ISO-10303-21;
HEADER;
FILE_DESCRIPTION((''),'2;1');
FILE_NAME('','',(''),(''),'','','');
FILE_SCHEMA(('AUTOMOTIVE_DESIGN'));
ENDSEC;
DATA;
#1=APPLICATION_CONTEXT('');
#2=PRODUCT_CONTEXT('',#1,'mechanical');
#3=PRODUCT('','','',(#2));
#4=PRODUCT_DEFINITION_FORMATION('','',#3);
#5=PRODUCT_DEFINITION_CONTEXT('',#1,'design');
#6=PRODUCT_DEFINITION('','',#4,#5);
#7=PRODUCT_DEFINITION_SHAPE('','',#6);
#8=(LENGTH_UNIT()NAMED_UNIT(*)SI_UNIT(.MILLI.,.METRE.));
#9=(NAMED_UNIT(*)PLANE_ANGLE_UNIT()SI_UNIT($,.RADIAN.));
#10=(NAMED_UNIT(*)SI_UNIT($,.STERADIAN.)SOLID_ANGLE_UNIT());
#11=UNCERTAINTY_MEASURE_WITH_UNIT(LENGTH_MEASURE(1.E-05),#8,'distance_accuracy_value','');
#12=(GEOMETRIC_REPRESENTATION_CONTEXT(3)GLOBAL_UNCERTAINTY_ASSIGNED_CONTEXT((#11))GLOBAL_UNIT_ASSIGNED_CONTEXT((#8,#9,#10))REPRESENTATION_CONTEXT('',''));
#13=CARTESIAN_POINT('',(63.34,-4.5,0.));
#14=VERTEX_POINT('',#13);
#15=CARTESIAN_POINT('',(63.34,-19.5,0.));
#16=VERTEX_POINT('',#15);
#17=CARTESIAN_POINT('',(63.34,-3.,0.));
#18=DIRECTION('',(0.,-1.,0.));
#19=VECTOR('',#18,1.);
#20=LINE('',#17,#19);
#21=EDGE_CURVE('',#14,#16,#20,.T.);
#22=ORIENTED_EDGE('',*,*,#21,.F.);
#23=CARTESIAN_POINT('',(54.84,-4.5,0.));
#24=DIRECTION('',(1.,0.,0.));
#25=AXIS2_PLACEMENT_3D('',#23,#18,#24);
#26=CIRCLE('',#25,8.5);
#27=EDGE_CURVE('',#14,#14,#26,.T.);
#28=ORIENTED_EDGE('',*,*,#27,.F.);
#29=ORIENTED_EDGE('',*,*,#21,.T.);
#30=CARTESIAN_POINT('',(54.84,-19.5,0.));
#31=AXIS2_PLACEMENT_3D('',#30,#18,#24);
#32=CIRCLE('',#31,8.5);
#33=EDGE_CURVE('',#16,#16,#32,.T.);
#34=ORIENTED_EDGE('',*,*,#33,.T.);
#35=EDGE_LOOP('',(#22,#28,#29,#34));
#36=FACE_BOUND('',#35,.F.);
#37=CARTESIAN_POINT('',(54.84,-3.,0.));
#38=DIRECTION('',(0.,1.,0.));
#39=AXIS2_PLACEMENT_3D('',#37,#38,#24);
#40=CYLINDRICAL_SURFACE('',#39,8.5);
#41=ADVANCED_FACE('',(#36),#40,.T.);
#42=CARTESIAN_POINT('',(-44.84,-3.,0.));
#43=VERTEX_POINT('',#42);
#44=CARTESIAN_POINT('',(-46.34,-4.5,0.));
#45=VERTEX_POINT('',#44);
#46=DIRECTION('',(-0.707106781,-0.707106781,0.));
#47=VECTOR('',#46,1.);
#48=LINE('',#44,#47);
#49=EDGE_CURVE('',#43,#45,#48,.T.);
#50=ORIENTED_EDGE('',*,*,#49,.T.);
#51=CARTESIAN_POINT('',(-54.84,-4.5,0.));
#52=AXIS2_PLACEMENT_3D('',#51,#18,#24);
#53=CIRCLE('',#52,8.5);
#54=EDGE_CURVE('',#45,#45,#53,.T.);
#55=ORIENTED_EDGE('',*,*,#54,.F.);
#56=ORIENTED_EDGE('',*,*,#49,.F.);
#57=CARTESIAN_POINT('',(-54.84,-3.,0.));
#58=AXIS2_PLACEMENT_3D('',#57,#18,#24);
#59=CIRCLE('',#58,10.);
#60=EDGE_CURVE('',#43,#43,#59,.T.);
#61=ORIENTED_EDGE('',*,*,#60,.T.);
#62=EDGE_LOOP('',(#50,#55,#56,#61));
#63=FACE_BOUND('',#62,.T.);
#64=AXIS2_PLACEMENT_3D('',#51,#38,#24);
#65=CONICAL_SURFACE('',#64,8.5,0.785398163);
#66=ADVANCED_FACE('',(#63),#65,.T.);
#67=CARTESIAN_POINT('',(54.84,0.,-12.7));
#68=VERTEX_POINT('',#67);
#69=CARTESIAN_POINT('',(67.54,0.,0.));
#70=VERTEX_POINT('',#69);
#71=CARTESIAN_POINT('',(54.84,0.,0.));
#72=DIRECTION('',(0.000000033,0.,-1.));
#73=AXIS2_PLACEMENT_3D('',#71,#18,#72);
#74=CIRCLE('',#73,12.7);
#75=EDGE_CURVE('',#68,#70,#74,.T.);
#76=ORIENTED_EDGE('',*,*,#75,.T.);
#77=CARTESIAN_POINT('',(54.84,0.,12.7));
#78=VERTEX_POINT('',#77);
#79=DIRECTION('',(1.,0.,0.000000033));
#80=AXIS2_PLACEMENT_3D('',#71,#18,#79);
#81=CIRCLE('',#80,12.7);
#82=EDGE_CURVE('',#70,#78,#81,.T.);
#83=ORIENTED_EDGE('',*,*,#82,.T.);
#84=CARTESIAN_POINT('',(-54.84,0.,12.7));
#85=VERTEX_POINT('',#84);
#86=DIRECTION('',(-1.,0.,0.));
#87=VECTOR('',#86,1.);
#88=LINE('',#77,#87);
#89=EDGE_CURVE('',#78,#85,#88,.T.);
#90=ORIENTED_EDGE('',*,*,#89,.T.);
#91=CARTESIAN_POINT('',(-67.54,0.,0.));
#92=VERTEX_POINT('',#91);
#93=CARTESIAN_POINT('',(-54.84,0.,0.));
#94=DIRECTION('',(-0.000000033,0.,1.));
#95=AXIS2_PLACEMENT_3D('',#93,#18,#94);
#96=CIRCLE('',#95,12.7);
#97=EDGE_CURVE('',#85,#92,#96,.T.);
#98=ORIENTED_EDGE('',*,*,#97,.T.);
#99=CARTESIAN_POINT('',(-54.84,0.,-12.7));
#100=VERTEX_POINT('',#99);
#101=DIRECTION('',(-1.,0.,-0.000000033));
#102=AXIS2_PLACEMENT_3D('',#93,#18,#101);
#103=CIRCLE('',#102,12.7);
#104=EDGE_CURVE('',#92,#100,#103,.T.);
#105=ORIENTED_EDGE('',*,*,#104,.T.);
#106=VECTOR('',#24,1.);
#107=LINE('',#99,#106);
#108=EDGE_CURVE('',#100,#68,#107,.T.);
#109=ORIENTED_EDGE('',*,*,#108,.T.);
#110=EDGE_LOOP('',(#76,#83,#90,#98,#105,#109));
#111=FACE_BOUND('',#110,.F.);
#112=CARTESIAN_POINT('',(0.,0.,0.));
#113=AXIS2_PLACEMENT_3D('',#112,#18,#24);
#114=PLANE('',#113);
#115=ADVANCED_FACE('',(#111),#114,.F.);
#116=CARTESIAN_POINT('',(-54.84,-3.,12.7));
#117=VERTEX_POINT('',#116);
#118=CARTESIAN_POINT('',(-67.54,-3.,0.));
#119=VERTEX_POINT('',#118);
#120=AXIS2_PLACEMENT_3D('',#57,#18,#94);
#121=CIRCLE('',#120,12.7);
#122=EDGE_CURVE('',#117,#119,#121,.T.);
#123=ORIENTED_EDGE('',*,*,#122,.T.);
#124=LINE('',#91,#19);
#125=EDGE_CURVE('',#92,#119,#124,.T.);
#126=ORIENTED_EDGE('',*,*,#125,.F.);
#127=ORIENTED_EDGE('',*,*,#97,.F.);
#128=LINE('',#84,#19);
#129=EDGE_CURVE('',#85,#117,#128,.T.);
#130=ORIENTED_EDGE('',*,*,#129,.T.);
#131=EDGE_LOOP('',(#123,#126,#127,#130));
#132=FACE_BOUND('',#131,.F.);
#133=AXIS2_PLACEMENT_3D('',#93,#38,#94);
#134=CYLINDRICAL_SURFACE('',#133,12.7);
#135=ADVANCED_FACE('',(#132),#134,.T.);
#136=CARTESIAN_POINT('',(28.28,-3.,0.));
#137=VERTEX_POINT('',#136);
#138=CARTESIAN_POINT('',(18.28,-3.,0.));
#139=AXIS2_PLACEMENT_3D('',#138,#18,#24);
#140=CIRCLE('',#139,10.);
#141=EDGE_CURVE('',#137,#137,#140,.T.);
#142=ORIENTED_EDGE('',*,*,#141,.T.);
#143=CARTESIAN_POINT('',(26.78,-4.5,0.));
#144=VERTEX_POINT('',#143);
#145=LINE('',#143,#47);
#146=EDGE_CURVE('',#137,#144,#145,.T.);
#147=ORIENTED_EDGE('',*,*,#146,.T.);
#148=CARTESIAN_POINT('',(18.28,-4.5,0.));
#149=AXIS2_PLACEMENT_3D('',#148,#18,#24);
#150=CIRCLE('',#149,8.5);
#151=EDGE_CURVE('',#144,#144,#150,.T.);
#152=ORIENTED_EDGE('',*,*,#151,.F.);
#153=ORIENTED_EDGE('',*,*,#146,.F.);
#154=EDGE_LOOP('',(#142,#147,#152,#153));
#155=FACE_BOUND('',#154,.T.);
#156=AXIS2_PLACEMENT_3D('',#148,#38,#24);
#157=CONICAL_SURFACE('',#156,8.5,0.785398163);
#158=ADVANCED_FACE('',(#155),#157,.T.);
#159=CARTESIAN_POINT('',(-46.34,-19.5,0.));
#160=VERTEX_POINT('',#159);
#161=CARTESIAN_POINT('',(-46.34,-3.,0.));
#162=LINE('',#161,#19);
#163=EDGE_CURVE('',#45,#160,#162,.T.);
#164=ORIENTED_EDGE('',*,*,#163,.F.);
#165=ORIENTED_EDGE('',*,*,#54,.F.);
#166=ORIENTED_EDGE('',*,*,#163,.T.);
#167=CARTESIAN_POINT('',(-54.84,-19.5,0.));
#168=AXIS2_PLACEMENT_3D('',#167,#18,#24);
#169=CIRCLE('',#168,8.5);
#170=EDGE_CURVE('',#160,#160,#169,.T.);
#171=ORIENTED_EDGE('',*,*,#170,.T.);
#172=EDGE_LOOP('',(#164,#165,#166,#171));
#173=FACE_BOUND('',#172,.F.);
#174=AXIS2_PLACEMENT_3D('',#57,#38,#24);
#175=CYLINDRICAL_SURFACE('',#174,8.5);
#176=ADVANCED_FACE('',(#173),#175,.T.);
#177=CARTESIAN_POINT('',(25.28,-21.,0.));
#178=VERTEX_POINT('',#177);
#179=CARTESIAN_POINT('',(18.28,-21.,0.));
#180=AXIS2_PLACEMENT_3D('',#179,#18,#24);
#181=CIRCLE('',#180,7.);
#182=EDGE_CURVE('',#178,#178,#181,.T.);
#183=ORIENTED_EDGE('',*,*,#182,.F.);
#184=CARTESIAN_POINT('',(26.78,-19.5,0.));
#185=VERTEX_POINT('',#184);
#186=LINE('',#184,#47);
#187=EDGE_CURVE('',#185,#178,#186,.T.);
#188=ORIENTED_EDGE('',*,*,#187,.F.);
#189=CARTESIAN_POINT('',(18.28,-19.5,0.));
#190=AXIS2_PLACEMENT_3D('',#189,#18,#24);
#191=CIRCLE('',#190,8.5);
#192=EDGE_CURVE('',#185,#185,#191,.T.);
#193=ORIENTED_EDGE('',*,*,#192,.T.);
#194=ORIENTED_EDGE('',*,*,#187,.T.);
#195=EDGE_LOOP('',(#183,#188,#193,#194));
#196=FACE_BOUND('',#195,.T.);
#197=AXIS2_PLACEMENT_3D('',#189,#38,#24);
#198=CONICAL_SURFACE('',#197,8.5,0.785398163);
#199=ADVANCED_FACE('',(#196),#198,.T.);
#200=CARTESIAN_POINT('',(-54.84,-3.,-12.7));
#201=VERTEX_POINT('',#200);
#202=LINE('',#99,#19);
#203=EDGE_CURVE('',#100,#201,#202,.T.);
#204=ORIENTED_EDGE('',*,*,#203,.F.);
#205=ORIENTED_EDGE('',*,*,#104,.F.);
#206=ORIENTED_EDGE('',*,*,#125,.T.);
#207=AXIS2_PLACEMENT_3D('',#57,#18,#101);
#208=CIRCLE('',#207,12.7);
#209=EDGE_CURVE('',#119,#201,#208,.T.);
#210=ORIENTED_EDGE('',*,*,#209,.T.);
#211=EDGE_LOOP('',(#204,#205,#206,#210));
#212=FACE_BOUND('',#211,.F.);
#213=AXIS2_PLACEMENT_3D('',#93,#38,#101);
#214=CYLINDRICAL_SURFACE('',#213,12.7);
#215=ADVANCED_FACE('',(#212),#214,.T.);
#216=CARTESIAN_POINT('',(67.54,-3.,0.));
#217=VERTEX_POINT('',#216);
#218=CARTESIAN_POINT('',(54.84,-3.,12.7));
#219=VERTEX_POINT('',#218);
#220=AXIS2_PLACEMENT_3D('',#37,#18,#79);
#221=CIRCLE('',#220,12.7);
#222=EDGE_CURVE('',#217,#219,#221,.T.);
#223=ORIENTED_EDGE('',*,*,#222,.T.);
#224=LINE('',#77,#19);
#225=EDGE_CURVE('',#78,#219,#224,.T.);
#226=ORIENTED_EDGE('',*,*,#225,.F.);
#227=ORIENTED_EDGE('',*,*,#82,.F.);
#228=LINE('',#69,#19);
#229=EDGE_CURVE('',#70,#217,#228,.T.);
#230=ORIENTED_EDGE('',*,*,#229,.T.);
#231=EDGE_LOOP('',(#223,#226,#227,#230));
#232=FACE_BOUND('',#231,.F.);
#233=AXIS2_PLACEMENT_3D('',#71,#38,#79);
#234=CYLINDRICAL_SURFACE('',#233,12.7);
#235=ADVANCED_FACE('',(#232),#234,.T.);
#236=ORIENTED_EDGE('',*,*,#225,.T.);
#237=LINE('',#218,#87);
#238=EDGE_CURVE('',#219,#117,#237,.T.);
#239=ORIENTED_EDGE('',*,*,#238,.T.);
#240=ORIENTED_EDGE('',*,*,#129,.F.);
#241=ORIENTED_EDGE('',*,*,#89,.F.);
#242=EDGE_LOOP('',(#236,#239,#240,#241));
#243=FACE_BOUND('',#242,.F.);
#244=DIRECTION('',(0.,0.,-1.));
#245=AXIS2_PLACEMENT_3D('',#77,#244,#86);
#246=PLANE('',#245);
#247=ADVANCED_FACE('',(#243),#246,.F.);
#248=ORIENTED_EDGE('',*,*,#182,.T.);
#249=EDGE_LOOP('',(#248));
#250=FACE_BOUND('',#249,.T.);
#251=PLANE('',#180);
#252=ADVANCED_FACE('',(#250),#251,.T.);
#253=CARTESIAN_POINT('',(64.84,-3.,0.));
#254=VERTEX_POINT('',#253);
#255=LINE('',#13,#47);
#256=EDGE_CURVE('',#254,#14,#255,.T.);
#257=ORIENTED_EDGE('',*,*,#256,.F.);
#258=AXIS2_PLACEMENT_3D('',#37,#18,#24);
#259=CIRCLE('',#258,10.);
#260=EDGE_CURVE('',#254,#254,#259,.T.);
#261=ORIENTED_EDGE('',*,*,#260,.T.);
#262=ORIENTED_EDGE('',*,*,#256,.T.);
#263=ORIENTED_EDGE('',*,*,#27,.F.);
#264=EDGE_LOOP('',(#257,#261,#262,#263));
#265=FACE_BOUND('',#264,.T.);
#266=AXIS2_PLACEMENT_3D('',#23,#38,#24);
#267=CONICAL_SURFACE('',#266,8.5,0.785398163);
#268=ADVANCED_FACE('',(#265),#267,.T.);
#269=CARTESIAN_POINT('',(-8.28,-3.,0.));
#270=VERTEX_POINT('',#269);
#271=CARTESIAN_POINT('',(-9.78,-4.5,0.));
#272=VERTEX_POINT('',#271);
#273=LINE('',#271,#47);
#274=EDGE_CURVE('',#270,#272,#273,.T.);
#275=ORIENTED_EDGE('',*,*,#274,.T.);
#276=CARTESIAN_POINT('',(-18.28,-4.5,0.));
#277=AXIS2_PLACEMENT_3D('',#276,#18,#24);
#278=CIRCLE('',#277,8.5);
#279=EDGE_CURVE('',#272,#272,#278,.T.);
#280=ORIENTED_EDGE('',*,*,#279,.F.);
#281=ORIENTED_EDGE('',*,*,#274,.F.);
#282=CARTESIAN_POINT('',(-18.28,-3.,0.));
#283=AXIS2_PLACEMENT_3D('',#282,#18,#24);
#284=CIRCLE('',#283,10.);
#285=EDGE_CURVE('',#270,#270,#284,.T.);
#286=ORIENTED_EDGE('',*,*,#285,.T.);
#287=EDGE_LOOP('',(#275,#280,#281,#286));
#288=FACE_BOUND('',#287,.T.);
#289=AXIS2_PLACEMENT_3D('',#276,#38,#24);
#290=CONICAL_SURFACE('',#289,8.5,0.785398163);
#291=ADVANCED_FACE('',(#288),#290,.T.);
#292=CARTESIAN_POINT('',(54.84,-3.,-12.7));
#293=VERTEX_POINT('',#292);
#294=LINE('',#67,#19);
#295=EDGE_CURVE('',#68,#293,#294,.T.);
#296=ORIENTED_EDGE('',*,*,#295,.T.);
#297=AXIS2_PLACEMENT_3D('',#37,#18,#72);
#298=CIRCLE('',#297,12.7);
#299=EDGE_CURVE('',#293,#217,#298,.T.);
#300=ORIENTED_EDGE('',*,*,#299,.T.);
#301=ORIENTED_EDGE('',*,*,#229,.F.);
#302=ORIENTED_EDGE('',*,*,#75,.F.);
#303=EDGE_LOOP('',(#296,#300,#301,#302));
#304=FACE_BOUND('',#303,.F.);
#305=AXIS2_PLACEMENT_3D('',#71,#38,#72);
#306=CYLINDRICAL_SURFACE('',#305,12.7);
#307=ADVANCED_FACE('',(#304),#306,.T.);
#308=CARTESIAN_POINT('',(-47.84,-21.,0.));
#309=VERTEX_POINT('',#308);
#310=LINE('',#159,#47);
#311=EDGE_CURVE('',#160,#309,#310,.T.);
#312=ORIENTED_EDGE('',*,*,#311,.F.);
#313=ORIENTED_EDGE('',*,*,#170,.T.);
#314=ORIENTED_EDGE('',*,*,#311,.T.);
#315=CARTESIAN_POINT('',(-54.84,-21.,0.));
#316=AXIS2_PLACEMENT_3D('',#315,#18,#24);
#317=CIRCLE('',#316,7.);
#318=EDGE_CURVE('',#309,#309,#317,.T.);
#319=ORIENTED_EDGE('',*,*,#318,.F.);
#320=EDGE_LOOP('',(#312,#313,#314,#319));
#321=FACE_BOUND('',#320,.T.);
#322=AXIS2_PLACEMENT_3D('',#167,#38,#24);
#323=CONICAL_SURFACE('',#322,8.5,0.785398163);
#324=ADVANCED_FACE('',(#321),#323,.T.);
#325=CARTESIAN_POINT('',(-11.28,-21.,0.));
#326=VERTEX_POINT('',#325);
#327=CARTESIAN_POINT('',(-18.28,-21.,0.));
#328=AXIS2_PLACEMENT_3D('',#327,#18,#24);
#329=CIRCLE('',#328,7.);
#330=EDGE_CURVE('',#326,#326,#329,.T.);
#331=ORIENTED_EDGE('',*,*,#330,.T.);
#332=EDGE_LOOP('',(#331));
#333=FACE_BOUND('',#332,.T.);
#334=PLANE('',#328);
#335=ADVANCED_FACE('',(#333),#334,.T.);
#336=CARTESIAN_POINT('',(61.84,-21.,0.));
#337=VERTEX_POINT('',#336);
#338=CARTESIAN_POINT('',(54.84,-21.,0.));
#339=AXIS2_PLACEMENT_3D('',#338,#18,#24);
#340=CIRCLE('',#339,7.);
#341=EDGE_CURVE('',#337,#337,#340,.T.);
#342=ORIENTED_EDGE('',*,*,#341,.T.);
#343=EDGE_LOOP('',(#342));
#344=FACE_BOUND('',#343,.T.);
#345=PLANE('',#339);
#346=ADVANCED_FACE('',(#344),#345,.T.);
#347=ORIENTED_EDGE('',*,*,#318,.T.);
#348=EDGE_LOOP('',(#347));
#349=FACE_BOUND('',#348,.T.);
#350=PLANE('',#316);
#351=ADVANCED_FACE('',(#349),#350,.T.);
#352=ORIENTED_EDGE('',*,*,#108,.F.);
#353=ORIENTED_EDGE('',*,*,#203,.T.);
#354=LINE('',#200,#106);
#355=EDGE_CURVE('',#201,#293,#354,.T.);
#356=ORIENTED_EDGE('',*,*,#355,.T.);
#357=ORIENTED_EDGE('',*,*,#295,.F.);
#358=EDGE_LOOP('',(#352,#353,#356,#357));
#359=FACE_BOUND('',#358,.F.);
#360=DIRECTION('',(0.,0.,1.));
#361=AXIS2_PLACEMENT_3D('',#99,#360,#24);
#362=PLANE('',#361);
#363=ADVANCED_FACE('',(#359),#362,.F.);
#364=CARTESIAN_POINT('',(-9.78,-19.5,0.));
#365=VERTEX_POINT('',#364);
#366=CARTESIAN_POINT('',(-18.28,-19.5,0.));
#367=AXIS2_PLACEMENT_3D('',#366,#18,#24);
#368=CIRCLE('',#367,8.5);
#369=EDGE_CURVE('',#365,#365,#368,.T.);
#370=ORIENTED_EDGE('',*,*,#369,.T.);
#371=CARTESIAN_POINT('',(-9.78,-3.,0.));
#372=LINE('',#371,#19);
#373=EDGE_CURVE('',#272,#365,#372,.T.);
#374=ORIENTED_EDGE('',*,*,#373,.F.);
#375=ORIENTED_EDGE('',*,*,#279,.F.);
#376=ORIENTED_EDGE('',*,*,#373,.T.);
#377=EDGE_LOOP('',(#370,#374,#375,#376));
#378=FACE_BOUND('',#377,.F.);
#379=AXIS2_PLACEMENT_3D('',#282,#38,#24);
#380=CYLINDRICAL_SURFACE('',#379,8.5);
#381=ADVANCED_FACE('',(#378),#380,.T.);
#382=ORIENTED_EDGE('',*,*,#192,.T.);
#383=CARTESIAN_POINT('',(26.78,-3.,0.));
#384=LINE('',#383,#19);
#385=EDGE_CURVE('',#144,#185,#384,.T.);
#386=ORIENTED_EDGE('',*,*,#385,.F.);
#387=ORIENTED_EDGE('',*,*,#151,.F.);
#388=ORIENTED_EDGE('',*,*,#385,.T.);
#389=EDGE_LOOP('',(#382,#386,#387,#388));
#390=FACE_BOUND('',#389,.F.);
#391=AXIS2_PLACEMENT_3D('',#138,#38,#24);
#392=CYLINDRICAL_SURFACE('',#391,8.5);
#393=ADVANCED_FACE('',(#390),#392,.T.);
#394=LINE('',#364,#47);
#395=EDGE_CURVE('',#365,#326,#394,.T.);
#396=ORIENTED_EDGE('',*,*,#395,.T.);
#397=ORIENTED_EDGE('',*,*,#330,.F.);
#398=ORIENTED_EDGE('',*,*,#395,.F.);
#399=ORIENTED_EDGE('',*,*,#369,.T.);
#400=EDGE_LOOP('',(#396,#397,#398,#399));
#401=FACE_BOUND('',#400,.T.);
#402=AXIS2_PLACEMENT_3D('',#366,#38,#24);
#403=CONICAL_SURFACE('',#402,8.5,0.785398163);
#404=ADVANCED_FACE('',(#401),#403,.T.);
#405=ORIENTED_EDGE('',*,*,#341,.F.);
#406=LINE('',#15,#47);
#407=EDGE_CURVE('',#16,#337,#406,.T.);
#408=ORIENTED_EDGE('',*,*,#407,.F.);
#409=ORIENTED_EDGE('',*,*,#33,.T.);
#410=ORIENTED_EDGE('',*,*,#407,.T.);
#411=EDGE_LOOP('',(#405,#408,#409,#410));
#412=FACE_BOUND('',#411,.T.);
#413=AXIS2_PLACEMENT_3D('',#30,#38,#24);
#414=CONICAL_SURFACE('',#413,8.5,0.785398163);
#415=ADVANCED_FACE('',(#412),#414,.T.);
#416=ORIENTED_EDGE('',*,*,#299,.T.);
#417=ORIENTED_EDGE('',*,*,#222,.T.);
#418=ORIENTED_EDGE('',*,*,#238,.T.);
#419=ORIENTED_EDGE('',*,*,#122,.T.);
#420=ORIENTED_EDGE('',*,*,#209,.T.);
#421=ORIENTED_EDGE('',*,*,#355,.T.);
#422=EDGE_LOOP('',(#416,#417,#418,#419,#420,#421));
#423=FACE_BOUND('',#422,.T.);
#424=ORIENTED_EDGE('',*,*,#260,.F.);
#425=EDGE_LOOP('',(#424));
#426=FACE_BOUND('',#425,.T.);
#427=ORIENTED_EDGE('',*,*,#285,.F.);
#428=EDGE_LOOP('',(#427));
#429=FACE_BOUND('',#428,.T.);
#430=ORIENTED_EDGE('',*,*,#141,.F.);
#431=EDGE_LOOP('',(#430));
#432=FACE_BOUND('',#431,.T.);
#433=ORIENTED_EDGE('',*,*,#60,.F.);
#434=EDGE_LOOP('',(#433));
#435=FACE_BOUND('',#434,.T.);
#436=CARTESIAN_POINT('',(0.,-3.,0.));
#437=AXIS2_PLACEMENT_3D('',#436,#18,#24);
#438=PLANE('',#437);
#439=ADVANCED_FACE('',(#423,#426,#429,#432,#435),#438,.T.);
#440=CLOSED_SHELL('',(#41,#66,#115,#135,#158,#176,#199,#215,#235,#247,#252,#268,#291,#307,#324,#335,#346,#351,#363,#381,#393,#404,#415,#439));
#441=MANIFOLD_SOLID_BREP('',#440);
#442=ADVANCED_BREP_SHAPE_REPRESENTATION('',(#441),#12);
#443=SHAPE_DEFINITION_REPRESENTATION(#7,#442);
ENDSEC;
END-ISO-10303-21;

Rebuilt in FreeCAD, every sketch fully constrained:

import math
import FreeCAD as App
import Part
import Sketcher
Q = App.Units.Quantity


def edges_at(feature, points):
    """Names of the edges that pass closest to the given points."""
    edges = feature.Shape.Edges
    near = lambda p: min(range(len(edges)), key=lambda i: edges[i].distToShape(Part.Vertex(*p))[0])
    return sorted({f"Edge{near(p) + 1}" for p in points})

doc = App.newDocument("Part")
body = doc.addObject("PartDesign::Body", "Body")

# Sketch on XZ plane
sketch1 = doc.addObject("Sketcher::SketchObject", "Sketch")
body.addObject(sketch1)
sketch1.AttachmentSupport = (doc.XZ_Plane, [""])
sketch1.MapMode = "FlatFace"
sketch1.addGeometry([
    Part.LineSegment(App.Vector(55, 13, 0), App.Vector(-55, 13, 0)),  # 0
    Part.ArcOfCircle(Part.Circle(App.Vector(-55, 0, 0), App.Vector(0, 0, 1), 13), math.radians(90), math.radians(180)),  # 1
    Part.ArcOfCircle(Part.Circle(App.Vector(-55, 0, 0), App.Vector(0, 0, 1), 13), math.radians(-180), math.radians(-90)),  # 2
    Part.LineSegment(App.Vector(-55, -13, 0), App.Vector(55, -13, 0)),  # 3
    Part.ArcOfCircle(Part.Circle(App.Vector(55, 0, 0), App.Vector(0, 0, 1), 13), math.radians(-90), math.radians(0)),  # 4
    Part.ArcOfCircle(Part.Circle(App.Vector(55, 0, 0), App.Vector(0, 0, 1), 13), math.radians(0), math.radians(90)),  # 5
], False)
sketch1.addConstraint([
    Sketcher.Constraint("Tangent", 0, 2, 1, 1),
    Sketcher.Constraint("Tangent", 1, 2, 2, 1),
    Sketcher.Constraint("Tangent", 2, 2, 3, 1),
    Sketcher.Constraint("Tangent", 3, 2, 4, 1),
    Sketcher.Constraint("Tangent", 4, 2, 5, 1),
    Sketcher.Constraint("Tangent", 5, 2, 0, 1),
    Sketcher.Constraint("Horizontal", 0),
    Sketcher.Constraint("Horizontal", 3),
    Sketcher.Constraint("Equal", 1, 2),
    Sketcher.Constraint("Equal", 2, 4),
    Sketcher.Constraint("Symmetric", 1, 3, 4, 3, -1, 1),
    Sketcher.Constraint("PointOnObject", 1, 2, -1),
    Sketcher.Constraint("PointOnObject", 4, 2, -1),
    Sketcher.Constraint("Radius", 1, Q("12.7 mm")),
    Sketcher.Constraint("DistanceX", 0, 2, 0, 1, Q("109.68 mm")),
])
pad1 = doc.addObject("PartDesign::Pad", "Pad")
body.addObject(pad1)
pad1.Profile = sketch1
pad1.Length = 3

# Sketch on XZ plane
sketch2 = doc.addObject("Sketcher::SketchObject", "Sketch001")
body.addObject(sketch2)
sketch2.AttachmentSupport = (doc.XZ_Plane, [""])
sketch2.MapMode = "FlatFace"
sketch2.AttachmentOffset = App.Placement(App.Vector(0, 0, 3), App.Rotation())
sketch2.addGeometry([
    Part.Circle(App.Vector(-55, 0, 0), App.Vector(0, 0, 1), 8),
    Part.Circle(App.Vector(55, 0, 0), App.Vector(0, 0, 1), 8),
    Part.Circle(App.Vector(-18, 0, 0), App.Vector(0, 0, 1), 8),
    Part.Circle(App.Vector(18, 0, 0), App.Vector(0, 0, 1), 8),
], False)
sketch2.addConstraint([
    Sketcher.Constraint("Equal", 0, 1),
    Sketcher.Constraint("Equal", 1, 2),
    Sketcher.Constraint("Equal", 2, 3),
    Sketcher.Constraint("Symmetric", 0, 3, 1, 3, -1, 1),
    Sketcher.Constraint("Symmetric", 2, 3, 3, 3, -1, 1),
    Sketcher.Constraint("PointOnObject", 0, 3, -1),
    Sketcher.Constraint("PointOnObject", 2, 3, -1),
    Sketcher.Constraint("Diameter", 0, Q("17 mm")),
    Sketcher.Constraint("DistanceX", 0, 3, -1, 1, Q("54.84 mm")),
    Sketcher.Constraint("DistanceX", 2, 3, -1, 1, Q("18.28 mm")),
])
pad2 = doc.addObject("PartDesign::Pad", "Pad001")
body.addObject(pad2)
pad2.Profile = sketch2
pad2.Length = 18
doc.recompute()

chamfer = doc.addObject("PartDesign::Chamfer", "Chamfer")
body.addObject(chamfer)
chamfer.Base = (pad2, edges_at(pad2, [
    (-63.34, -21, 0),
    (-26.78, -21, 0),
    (9.78, -21, 0),
    (46.34, -21, 0),
    (-26.78, -3, 0),
    (-63.34, -3, 0),
    (9.78, -3, 0),
    (46.34, -3, 0),
]))
chamfer.Size = 1.5

doc.recompute()
